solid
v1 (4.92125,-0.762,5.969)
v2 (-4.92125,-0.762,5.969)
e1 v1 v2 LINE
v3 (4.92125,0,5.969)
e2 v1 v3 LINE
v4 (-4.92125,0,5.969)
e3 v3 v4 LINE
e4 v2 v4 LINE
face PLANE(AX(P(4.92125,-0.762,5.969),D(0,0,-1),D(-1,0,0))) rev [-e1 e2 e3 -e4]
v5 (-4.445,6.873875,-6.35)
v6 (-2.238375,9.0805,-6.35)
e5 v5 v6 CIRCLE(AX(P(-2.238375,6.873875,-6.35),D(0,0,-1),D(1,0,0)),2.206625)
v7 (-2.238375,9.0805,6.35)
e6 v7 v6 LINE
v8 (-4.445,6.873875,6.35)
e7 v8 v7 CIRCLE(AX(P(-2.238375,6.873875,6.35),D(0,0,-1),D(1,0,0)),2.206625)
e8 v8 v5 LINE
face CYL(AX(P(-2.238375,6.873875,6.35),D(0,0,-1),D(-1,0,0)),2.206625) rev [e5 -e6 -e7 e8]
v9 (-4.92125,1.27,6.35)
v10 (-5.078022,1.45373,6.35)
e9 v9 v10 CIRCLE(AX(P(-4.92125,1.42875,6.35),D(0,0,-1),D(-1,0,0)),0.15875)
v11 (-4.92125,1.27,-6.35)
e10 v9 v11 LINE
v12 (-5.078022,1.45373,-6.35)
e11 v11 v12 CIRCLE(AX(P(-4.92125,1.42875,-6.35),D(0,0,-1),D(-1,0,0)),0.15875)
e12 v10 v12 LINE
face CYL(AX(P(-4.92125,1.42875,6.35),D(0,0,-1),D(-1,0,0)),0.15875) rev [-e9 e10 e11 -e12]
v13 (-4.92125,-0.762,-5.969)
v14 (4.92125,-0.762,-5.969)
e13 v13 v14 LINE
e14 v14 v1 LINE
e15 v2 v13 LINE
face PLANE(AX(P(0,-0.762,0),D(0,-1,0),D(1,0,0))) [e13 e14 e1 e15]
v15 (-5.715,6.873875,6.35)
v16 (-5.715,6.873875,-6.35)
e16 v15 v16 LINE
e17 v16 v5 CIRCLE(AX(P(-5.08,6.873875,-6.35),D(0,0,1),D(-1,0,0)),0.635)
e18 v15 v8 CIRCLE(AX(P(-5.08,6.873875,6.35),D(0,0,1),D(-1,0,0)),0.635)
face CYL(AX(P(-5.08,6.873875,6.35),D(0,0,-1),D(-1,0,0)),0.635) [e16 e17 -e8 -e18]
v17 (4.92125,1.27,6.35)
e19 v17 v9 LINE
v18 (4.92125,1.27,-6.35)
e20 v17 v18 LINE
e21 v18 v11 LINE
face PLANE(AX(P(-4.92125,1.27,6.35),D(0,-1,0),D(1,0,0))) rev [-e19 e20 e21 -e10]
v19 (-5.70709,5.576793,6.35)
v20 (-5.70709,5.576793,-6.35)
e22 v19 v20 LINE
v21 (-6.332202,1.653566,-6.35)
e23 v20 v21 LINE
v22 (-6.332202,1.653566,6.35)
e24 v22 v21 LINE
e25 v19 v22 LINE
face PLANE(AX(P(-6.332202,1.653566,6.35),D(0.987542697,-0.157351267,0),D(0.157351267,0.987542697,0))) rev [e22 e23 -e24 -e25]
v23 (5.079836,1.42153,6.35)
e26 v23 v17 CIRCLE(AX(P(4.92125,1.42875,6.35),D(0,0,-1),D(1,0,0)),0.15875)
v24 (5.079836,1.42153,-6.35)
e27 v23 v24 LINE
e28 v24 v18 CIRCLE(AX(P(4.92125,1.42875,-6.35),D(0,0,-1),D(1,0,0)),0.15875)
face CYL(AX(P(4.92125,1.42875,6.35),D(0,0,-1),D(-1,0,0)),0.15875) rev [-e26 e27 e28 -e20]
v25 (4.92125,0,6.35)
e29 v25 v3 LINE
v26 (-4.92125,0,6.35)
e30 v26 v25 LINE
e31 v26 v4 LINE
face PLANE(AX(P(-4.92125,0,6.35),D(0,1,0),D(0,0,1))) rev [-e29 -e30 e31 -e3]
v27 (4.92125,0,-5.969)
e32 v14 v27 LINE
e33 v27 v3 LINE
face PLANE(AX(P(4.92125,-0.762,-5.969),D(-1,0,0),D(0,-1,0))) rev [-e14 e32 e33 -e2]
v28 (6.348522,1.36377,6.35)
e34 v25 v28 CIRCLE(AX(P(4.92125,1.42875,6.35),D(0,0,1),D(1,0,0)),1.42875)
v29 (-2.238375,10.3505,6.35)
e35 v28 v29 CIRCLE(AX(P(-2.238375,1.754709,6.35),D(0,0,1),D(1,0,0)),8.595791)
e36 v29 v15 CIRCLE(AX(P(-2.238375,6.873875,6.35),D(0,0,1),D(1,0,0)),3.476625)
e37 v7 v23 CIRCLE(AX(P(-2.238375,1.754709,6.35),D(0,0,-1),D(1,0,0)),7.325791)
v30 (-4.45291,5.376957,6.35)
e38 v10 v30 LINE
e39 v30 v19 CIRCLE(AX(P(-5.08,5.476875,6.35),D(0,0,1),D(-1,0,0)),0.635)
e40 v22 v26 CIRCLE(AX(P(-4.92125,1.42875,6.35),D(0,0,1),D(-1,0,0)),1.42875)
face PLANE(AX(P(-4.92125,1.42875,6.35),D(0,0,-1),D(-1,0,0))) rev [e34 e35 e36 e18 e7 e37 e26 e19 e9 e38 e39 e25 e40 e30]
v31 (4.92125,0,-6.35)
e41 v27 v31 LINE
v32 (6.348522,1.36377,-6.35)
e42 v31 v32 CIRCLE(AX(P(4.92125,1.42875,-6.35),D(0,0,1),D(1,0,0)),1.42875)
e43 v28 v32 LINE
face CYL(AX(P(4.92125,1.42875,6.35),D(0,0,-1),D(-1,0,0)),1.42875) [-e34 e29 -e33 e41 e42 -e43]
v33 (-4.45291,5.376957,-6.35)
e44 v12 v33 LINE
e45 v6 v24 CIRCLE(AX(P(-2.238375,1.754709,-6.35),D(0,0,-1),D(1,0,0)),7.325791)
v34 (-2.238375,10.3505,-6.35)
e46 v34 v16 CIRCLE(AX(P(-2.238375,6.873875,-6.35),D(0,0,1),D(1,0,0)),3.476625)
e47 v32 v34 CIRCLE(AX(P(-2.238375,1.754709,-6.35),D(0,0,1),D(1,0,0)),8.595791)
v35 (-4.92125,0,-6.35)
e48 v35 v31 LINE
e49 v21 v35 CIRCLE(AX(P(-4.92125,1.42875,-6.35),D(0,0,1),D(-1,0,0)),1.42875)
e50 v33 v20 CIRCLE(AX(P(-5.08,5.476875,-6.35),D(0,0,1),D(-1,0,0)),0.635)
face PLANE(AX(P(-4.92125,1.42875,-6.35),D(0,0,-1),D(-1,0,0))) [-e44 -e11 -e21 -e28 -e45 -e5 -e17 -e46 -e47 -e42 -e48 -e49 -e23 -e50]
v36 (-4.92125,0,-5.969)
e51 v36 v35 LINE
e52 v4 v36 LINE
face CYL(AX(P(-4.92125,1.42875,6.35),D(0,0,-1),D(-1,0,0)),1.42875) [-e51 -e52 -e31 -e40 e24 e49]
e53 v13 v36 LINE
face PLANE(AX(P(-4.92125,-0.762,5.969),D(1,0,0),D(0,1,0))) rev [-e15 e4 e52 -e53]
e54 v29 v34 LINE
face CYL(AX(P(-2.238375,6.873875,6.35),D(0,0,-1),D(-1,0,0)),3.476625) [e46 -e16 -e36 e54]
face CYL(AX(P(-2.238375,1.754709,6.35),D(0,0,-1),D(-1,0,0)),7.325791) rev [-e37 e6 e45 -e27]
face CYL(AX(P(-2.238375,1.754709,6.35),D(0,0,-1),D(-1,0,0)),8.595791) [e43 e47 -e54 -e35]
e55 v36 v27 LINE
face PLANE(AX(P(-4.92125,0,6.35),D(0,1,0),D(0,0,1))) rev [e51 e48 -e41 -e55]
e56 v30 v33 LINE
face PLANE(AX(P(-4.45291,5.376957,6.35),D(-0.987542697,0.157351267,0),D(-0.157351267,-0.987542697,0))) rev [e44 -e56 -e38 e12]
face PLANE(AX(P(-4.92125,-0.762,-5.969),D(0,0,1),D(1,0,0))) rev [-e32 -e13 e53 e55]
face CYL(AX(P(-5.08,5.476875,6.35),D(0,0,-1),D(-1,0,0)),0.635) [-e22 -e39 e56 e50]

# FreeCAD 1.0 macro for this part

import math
import FreeCAD as App
import Part
import Sketcher
Q = App.Units.Quantity


def add_polygon(sketch, points):
    """Adds a closed chain of lines whose ends are joined by coincident constraints."""
    first, n = sketch.GeometryCount, len(points)
    for a, b in zip(points, points[1:] + points[:1]):
        sketch.addGeometry(Part.LineSegment(App.Vector(*a, 0), App.Vector(*b, 0)), False)
    for i in range(n):
        sketch.addConstraint(Sketcher.Constraint("Coincident", first + i, 2, first + (i + 1) % n, 1))

doc = App.newDocument("Part")
body = doc.addObject("PartDesign::Body", "Body")

# Sketch on XY plane
sketch1 = doc.addObject("Sketcher::SketchObject", "Sketch")
body.addObject(sketch1)
sketch1.AttachmentSupport = (doc.XY_Plane, [""])
sketch1.MapMode = "FlatFace"
sketch1.addGeometry([
    Part.LineSegment(App.Vector(-4.92, 0, 0), App.Vector(4.92, 0, 0)),  # 0
    Part.ArcOfCircle(Part.Circle(App.Vector(4.92, 1.43, 0), App.Vector(0, 0, 1), 1.43), math.radians(-90), math.radians(-3)),  # 1
    Part.ArcOfCircle(Part.Circle(App.Vector(-2.24, 1.75, 0), App.Vector(0, 0, 1), 8.6), math.radians(-3), math.radians(90)),  # 2
    Part.ArcOfCircle(Part.Circle(App.Vector(-2.24, 6.87, 0), App.Vector(0, 0, 1), 3.48), math.radians(90), math.radians(180)),  # 3
    Part.ArcOfCircle(Part.Circle(App.Vector(-5.08, 6.87, 0), App.Vector(0, 0, 1), 0.64), math.radians(180), math.radians(360)),  # 4
    Part.ArcOfCircle(Part.Circle(App.Vector(-2.24, 6.87, 0), App.Vector(0, 0, 1), 2.21), math.radians(90), math.radians(180)),  # 5
    Part.ArcOfCircle(Part.Circle(App.Vector(-2.24, 1.75, 0), App.Vector(0, 0, 1), 7.33), math.radians(-3), math.radians(90)),  # 6
    Part.ArcOfCircle(Part.Circle(App.Vector(4.92, 1.43, 0), App.Vector(0, 0, 1), 0.16), math.radians(-90), math.radians(-3)),  # 7
    Part.LineSegment(App.Vector(4.92, 1.27, 0), App.Vector(-4.92, 1.27, 0)),  # 8
    Part.ArcOfCircle(Part.Circle(App.Vector(-4.92, 1.43, 0), App.Vector(0, 0, 1), 0.16), math.radians(171), math.radians(270)),  # 9
    Part.LineSegment(App.Vector(-5.08, 1.45, 0), App.Vector(-4.45, 5.38, 0)),  # 10
    Part.ArcOfCircle(Part.Circle(App.Vector(-5.08, 5.48, 0), App.Vector(0, 0, 1), 0.64), math.radians(-9), math.radians(171)),  # 11
    Part.LineSegment(App.Vector(-5.71, 5.58, 0), App.Vector(-6.33, 1.65, 0)),  # 12
    Part.ArcOfCircle(Part.Circle(App.Vector(-4.92, 1.43, 0), App.Vector(0, 0, 1), 1.43), math.radians(171), math.radians(270)),  # 13
], False)
sketch1.addConstraint([
    Sketcher.Constraint("Tangent", 0, 2, 1, 1),
    Sketcher.Constraint("Tangent", 1, 2, 2, 1),
    Sketcher.Constraint("Tangent", 2, 2, 3, 1),
    Sketcher.Constraint("Tangent", 3, 2, 4, 1),
    Sketcher.Constraint("Tangent", 4, 2, 5, 2),
    Sketcher.Constraint("Tangent", 5, 1, 6, 2),
    Sketcher.Constraint("Tangent", 6, 1, 7, 2),
    Sketcher.Constraint("Tangent", 7, 1, 8, 1),
    Sketcher.Constraint("Tangent", 8, 2, 9, 2),
    Sketcher.Constraint("Tangent", 9, 1, 10, 1),
    Sketcher.Constraint("Tangent", 10, 2, 11, 1),
    Sketcher.Constraint("Tangent", 11, 2, 12, 1),
    Sketcher.Constraint("Tangent", 12, 2, 13, 1),
    Sketcher.Constraint("Tangent", 13, 2, 0, 1),
    Sketcher.Constraint("Horizontal", 0),
    Sketcher.Constraint("Horizontal", 8),
    Sketcher.Constraint("Coincident", 5, 3, 3, 3),
    Sketcher.Constraint("Coincident", 6, 3, 2, 3),
    Sketcher.Constraint("Coincident", 7, 3, 1, 3),
    Sketcher.Constraint("Coincident", 13, 3, 9, 3),
    Sketcher.Constraint("Equal", 7, 9),
    Sketcher.Constraint("Equal", 4, 11),
    Sketcher.Constraint("Symmetric", 0, 2, 13, 2, -1, 1),
    Sketcher.Constraint("Horizontal", 3, 3, 4, 3),
    Sketcher.Constraint("Vertical", 2, 3, 3, 3),
    Sketcher.Constraint("Vertical", 4, 3, 11, 3),
    Sketcher.Constraint("Radius", 4, Q("0.025 in")),
    Sketcher.Constraint("DistanceX", 4, 3, -1, 1, Q("0.2 in")),
    Sketcher.Constraint("DistanceX", 0, 1, 0, 2, Q("0.3875 in")),
    Sketcher.Constraint("Radius", 1, Q("1.42875 mm")),
    Sketcher.Constraint("Radius", 2, Q("8.595791 mm")),
    Sketcher.Constraint("DistanceY", 11, 3, 4, 3, Q("0.055 in")),
    Sketcher.Constraint("DistanceY", -1, 1, 2, 2, Q("0.4075 in")),
])
pad1 = doc.addObject("PartDesign::Pad", "Pad")
body.addObject(pad1)
pad1.Profile = sketch1
pad1.Type = "TwoLengths"
pad1.Length = Q("0.25 in")
pad1.Length2 = Q("0.25 in")

# Sketch on XZ plane
sketch2 = doc.addObject("Sketcher::SketchObject", "Sketch001")
body.addObject(sketch2)
sketch2.AttachmentSupport = (doc.XZ_Plane, [""])
sketch2.MapMode = "FlatFace"
add_polygon(sketch2, [(-5, 6), (-5, -6), (5, -6), (5, 6)])  # lines 0-3
sketch2.addConstraint([
    Sketcher.Constraint("Vertical", 0),
    Sketcher.Constraint("Horizontal", 1),
    Sketcher.Constraint("Vertical", 2),
    Sketcher.Constraint("Horizontal", 3),
    Sketcher.Constraint("Symmetric", 0, 2, 2, 2, -1, 1),
    Sketcher.Constraint("DistanceY", 0, 2, 0, 1, Q("0.47 in")),
    Sketcher.Constraint("DistanceX", 1, 1, 1, 2, Q("0.3875 in")),
])
pad2 = doc.addObject("PartDesign::Pad", "Pad001")
body.addObject(pad2)
pad2.Profile = sketch2
pad2.Length = Q("0.03 in")

doc.recompute()
